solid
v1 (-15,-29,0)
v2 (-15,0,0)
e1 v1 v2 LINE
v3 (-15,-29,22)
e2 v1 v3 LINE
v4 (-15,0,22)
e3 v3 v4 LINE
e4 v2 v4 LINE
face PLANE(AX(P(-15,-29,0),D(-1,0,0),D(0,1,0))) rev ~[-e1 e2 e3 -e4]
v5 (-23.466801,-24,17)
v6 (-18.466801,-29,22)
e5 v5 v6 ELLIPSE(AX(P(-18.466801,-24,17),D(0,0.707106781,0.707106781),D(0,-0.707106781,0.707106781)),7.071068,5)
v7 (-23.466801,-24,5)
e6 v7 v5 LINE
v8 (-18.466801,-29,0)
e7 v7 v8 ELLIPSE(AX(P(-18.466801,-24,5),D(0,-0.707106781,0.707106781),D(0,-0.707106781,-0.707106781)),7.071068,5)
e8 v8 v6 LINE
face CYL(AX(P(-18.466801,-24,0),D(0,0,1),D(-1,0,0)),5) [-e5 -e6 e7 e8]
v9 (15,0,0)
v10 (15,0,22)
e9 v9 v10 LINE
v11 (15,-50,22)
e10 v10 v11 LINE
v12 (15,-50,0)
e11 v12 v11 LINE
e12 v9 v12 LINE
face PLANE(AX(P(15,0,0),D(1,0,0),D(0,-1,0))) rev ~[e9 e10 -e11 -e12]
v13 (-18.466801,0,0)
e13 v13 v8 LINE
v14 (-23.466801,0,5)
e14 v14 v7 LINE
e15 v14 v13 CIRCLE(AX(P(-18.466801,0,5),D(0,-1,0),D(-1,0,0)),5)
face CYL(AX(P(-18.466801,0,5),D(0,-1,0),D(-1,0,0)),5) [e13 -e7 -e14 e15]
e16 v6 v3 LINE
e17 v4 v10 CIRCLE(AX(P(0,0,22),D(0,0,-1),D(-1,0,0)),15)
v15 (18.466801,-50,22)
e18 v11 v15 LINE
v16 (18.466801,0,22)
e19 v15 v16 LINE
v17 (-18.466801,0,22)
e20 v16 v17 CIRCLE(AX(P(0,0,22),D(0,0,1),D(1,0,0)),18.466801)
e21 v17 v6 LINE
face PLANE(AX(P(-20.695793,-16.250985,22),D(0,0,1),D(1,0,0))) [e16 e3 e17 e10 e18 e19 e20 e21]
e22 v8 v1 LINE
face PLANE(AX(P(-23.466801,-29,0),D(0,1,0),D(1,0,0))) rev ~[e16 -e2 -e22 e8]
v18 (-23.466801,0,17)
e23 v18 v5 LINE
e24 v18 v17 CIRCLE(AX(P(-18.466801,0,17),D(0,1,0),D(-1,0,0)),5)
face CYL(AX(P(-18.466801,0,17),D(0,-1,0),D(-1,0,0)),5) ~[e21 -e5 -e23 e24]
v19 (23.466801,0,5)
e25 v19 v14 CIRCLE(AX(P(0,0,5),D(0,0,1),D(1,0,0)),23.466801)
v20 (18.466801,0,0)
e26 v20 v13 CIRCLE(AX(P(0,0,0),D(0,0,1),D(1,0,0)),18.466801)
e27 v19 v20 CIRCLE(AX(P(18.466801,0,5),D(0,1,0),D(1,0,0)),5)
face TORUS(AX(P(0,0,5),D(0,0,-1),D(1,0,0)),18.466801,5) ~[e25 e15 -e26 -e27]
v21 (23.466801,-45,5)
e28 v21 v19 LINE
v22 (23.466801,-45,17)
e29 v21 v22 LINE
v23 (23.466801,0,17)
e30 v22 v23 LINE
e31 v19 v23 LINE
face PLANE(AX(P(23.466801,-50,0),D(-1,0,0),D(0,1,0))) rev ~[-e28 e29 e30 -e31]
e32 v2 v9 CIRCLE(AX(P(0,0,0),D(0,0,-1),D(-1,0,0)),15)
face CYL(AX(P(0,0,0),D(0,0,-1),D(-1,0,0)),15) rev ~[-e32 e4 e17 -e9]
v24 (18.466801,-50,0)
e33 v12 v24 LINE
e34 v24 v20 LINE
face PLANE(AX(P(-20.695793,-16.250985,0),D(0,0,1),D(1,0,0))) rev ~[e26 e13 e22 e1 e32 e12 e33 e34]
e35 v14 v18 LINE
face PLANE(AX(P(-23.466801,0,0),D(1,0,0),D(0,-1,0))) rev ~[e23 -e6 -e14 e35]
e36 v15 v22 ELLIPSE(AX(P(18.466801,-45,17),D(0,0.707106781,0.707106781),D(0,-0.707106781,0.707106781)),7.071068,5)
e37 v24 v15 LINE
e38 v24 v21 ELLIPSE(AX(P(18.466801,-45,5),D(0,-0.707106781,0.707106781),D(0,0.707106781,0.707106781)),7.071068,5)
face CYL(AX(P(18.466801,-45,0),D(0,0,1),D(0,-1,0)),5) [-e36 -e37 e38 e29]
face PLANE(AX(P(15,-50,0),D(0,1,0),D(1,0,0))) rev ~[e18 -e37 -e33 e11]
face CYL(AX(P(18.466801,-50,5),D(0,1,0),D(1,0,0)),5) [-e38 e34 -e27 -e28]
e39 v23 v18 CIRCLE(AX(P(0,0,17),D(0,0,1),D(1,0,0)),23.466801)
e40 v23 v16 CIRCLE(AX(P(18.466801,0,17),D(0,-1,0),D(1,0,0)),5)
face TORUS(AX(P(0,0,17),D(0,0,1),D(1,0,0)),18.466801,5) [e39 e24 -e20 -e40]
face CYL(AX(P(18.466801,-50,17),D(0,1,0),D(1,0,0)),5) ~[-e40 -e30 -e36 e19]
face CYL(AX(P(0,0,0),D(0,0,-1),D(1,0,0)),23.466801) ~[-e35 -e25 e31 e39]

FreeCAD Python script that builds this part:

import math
import FreeCAD as App
import Part
import Sketcher

V = App.Vector
Q = App.Units.Quantity


def edges_at(feature, points):
    """Names of the edges that pass closest to the given points."""
    edges = feature.Shape.Edges
    near = lambda p: min(range(len(edges)), key=lambda i: edges[i].distToShape(Part.Vertex(*p))[0])
    return sorted({f"Edge{near(p) + 1}" for p in points})

doc = App.newDocument("Part")
body = doc.addObject("PartDesign::Body", "Body")

# Sketch on XY plane
sketch1 = body.newObject("Sketcher::SketchObject", "Sketch")
sketch1.AttachmentSupport = (doc.getObject("XY_Plane"), [""])
sketch1.MapMode = "FlatFace"
sketch1.addGeometry(Part.LineSegment(V(-23, 0, 0), V(-23, -29, 0)), False)
sketch1.addGeometry(Part.LineSegment(V(-23, -29, 0), V(-15, -29, 0)), False)
sketch1.addGeometry(Part.LineSegment(V(-15, -29, 0), V(-15, 0, 0)), False)
sketch1.addGeometry(Part.ArcOfCircle(Part.Circle(V(0, 0, 0), V(0, 0, 1), 15), math.radians(0), math.radians(180)), False)
sketch1.addGeometry(Part.LineSegment(V(15, 0, 0), V(15, -50, 0)), False)
sketch1.addGeometry(Part.LineSegment(V(15, -50, 0), V(23, -50, 0)), False)
sketch1.addGeometry(Part.LineSegment(V(23, -50, 0), V(23, 0, 0)), False)
sketch1.addGeometry(Part.ArcOfCircle(Part.Circle(V(0, 0, 0), V(0, 0, 1), 23), math.radians(0), math.radians(180)), False)
sketch1.addConstraint(Sketcher.Constraint("Coincident", 0, 2, 1, 1))
sketch1.addConstraint(Sketcher.Constraint("Coincident", 1, 2, 2, 1))
sketch1.addConstraint(Sketcher.Constraint("Tangent", 2, 2, 3, 2))
sketch1.addConstraint(Sketcher.Constraint("Tangent", 3, 1, 4, 1))
sketch1.addConstraint(Sketcher.Constraint("Coincident", 4, 2, 5, 1))
sketch1.addConstraint(Sketcher.Constraint("Coincident", 5, 2, 6, 1))
sketch1.addConstraint(Sketcher.Constraint("Tangent", 6, 2, 7, 1))
sketch1.addConstraint(Sketcher.Constraint("Tangent", 7, 2, 0, 1))
sketch1.addConstraint(Sketcher.Constraint("Vertical", 0))
sketch1.addConstraint(Sketcher.Constraint("Horizontal", 1))
sketch1.addConstraint(Sketcher.Constraint("Vertical", 2))
sketch1.addConstraint(Sketcher.Constraint("Vertical", 4))
sketch1.addConstraint(Sketcher.Constraint("Horizontal", 5))
sketch1.addConstraint(Sketcher.Constraint("Vertical", 6))
sketch1.addConstraint(Sketcher.Constraint("Coincident", 3, 3, -1, 1))
sketch1.addConstraint(Sketcher.Constraint("Coincident", 7, 3, -1, 1))
sketch1.addConstraint(Sketcher.Constraint("Radius", 3, Q("15 mm")))
sketch1.addConstraint(Sketcher.Constraint("DistanceY", 0, 2, 0, 1, Q("29 mm")))
sketch1.addConstraint(Sketcher.Constraint("DistanceY", 4, 2, 4, 1, Q("50 mm")))
sketch1.addConstraint(Sketcher.Constraint("Radius", 7, Q("23.466801 mm")))
pad1 = body.newObject("PartDesign::Pad", "Pad")
pad1.Profile = sketch1
pad1.Length = 22
doc.recompute()

fillet = body.newObject("PartDesign::Fillet", "Fillet")
fillet.Base = (pad1, edges_at(pad1, [
    (23.467, -50, 11),
    (-23.467, -14.5, 22),
    (23.467, -25, 0),
    (-23.467, -29, 11),
]))
fillet.Radius = 5

doc.recompute()
